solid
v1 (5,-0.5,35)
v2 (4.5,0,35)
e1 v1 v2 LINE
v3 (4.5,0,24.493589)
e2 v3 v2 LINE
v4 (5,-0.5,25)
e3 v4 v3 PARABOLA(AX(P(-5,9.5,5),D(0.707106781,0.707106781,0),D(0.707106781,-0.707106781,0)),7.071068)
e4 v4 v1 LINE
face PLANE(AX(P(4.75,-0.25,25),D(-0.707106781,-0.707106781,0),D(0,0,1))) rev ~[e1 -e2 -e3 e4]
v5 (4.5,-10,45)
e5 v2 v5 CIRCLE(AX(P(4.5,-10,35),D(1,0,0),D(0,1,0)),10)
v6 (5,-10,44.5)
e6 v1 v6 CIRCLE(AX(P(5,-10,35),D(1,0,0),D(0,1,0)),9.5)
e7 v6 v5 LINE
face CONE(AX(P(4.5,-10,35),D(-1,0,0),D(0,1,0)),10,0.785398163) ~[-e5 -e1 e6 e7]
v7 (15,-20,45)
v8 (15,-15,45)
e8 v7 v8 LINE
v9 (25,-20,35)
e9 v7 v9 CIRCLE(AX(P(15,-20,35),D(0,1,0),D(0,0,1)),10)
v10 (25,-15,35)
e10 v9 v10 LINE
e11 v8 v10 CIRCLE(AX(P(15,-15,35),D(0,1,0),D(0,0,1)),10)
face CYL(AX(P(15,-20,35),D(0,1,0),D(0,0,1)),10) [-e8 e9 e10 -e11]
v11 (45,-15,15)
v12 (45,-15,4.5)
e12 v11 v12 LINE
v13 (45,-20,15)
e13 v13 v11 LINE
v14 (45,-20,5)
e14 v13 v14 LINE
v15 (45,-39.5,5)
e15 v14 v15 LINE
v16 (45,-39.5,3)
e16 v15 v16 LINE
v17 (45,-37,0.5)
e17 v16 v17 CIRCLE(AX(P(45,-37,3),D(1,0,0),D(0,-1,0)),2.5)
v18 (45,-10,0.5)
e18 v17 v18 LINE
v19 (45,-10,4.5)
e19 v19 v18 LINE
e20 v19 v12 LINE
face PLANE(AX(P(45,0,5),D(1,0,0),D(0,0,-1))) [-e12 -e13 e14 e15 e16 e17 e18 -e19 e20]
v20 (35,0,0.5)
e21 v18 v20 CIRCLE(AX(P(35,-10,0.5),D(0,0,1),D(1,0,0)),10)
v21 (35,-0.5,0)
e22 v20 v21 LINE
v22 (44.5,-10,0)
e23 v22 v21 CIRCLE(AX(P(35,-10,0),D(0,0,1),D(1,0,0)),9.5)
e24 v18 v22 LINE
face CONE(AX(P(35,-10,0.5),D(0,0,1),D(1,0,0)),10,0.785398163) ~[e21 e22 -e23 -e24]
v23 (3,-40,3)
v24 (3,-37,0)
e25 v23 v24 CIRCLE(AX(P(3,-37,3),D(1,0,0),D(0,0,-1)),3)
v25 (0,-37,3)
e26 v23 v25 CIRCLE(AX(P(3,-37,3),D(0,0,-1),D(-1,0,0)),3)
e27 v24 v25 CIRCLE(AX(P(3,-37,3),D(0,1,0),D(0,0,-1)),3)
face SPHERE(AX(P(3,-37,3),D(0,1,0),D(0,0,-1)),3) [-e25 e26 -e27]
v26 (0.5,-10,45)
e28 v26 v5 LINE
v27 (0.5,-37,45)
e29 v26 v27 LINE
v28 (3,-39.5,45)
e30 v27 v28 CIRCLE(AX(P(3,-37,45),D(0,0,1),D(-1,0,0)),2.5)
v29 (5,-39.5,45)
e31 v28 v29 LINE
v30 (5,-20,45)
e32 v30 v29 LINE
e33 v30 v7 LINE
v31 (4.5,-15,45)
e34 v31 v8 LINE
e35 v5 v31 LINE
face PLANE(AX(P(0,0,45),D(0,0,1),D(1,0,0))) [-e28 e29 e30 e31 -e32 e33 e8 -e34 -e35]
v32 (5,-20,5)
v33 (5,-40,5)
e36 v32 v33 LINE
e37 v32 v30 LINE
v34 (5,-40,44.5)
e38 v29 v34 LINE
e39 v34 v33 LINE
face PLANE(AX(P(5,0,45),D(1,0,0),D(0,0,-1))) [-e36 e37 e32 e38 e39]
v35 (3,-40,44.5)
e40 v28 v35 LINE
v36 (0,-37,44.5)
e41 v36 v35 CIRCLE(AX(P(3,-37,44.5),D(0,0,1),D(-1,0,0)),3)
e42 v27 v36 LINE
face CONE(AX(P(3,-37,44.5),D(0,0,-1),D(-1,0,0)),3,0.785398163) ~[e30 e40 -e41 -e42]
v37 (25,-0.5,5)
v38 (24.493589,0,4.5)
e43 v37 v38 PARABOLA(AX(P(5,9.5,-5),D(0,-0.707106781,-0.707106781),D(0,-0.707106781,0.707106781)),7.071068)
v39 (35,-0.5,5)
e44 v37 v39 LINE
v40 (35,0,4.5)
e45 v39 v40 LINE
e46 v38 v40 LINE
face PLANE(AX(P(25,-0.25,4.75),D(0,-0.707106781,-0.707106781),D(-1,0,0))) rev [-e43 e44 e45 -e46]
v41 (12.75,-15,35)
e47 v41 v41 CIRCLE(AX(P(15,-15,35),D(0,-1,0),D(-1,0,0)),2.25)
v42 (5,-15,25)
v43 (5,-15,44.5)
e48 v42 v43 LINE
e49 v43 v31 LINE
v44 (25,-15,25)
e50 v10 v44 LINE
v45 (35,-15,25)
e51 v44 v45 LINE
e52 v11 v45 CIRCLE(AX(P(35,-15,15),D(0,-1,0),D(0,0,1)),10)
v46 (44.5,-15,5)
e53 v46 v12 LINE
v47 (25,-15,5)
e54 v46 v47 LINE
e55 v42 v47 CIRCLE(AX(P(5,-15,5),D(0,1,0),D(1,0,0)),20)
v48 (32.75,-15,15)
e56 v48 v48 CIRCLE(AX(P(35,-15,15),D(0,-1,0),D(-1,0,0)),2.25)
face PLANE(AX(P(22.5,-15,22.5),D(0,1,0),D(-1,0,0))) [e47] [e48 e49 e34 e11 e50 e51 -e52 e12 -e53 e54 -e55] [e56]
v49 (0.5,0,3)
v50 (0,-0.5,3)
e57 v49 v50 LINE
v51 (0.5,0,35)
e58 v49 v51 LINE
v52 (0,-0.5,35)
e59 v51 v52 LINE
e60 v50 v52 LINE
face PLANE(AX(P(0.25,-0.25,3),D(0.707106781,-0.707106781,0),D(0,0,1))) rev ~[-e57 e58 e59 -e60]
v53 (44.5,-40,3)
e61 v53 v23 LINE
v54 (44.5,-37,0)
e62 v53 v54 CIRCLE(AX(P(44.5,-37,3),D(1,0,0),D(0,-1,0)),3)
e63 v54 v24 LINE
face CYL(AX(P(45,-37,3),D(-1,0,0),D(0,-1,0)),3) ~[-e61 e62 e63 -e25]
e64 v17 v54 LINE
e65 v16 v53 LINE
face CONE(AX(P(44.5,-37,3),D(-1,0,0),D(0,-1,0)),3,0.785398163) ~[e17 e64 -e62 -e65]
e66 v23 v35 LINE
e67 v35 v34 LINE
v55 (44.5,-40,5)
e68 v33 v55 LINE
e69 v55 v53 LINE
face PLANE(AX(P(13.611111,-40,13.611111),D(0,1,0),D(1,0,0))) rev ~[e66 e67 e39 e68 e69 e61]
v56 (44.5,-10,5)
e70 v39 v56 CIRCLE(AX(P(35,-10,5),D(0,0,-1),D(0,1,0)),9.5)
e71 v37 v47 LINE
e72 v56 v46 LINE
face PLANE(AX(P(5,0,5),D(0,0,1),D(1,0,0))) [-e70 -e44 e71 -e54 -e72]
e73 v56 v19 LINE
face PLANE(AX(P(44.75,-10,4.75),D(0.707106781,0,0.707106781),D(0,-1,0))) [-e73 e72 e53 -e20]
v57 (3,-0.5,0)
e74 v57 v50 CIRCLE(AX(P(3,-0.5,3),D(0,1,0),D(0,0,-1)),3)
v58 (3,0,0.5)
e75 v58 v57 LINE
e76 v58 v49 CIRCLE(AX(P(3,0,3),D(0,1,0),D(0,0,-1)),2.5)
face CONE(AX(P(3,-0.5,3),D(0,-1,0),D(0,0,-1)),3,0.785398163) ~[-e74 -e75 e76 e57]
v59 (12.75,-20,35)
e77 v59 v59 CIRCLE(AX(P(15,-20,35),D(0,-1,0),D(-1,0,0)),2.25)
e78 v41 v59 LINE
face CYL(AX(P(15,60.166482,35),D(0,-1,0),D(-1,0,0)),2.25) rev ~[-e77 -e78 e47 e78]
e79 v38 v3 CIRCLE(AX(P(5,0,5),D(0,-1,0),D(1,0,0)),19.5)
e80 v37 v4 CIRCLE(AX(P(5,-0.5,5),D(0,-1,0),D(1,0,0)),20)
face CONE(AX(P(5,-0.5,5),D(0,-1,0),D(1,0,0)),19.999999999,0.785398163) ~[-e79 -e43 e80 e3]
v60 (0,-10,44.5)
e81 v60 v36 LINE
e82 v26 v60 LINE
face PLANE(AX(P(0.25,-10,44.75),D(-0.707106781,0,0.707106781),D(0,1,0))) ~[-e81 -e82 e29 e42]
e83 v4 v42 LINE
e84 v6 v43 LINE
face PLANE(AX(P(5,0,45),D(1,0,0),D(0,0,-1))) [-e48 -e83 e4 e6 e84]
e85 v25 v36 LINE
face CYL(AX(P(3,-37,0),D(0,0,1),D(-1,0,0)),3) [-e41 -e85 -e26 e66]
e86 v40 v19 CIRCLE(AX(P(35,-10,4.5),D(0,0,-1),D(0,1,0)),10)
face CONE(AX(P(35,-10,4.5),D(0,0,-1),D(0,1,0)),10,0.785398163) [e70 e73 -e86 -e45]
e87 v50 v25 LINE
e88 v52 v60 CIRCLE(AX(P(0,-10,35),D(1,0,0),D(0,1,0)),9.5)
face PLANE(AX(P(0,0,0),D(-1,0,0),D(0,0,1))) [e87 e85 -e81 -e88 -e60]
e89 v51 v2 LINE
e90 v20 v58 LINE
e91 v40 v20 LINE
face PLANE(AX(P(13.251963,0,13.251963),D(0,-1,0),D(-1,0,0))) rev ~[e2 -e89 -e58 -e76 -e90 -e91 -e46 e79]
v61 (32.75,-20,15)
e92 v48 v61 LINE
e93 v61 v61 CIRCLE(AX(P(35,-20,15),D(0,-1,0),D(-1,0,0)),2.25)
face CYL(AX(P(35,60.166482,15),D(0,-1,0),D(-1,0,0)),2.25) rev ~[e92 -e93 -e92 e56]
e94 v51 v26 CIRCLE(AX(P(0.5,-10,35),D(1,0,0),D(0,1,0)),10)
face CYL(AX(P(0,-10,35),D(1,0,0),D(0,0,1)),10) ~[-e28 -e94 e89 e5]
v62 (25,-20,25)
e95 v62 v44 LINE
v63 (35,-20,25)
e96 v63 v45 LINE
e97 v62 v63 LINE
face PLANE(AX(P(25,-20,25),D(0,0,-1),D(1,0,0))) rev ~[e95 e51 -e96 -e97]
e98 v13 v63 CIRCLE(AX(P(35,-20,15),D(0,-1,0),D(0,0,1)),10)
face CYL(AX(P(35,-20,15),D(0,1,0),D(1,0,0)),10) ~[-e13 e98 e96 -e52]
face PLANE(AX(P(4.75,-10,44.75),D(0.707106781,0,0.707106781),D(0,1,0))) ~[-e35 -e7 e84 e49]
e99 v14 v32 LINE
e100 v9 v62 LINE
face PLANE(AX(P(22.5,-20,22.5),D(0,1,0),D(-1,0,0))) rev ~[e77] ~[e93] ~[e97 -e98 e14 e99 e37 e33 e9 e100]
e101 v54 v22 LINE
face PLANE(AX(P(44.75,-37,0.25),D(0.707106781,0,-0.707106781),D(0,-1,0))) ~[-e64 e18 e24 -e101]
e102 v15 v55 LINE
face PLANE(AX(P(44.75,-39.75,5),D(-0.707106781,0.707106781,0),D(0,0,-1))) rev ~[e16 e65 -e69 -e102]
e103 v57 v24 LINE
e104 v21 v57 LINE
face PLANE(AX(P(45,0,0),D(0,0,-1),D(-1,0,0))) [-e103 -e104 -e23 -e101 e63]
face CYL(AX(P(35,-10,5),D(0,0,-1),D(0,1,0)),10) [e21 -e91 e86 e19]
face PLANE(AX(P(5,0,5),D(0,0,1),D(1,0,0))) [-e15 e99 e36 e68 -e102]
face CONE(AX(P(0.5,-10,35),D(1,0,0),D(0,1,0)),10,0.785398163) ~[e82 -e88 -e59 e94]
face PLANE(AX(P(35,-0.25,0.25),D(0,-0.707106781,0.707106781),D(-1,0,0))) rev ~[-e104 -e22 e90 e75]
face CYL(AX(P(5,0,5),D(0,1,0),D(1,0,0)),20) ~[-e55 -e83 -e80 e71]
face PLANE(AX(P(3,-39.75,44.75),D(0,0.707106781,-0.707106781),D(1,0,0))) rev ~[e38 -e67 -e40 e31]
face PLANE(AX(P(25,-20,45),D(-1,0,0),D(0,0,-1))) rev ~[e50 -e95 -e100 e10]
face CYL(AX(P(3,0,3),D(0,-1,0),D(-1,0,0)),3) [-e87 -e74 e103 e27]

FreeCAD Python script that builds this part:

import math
import FreeCAD as App
import Part
import Sketcher

V = App.Vector


def edges_at(feature, points):
    """Names of the edges that pass closest to the given points."""
    edges = feature.Shape.Edges
    near = lambda p: min(range(len(edges)), key=lambda i: edges[i].distToShape(Part.Vertex(*p))[0])
    return sorted({f"Edge{near(p) + 1}" for p in points})


def add_polygon(sketch, points):
    """Adds a closed chain of lines whose ends are joined by coincident constraints."""
    first, n = sketch.GeometryCount, len(points)
    for a, b in zip(points, points[1:] + points[:1]):
        sketch.addGeometry(Part.LineSegment(App.Vector(*a, 0), App.Vector(*b, 0)), False)
    for i in range(n):
        sketch.addConstraint(Sketcher.Constraint("Coincident", first + i, 2, first + (i + 1) % n, 1))

doc = App.newDocument("Part")
body = doc.addObject("PartDesign::Body", "Body")

sketch1 = body.newObject("Sketcher::SketchObject", "Sketch")
sketch1.AttachmentSupport = (doc.getObject("XZ_Plane"), [""])
sketch1.MapMode = "FlatFace"
add_polygon(sketch1, [(0, 0), (0, 45), (5, 45), (5, 5), (45, 5), (45, 0)])
sketch1.addConstraint(Sketcher.Constraint("Vertical", 0))
sketch1.addConstraint(Sketcher.Constraint("Horizontal", 1))
sketch1.addConstraint(Sketcher.Constraint("Vertical", 2))
sketch1.addConstraint(Sketcher.Constraint("Horizontal", 3))
sketch1.addConstraint(Sketcher.Constraint("Vertical", 4))
sketch1.addConstraint(Sketcher.Constraint("Horizontal", 5))
sketch1.addConstraint(Sketcher.Constraint("Coincident", 5, 2, -1, 1))
sketch1.addConstraint(Sketcher.Constraint("Equal", 5, 0))
sketch1.addConstraint(Sketcher.Constraint("Equal", 3, 2))
sketch1.addConstraint(Sketcher.Constraint("DistanceX", 1, 1, 1, 2, 5.0))
sketch1.addConstraint(Sketcher.Constraint("DistanceX", 3, 1, 3, 2, 40.0))
pad1 = body.newObject("PartDesign::Pad", "Pad")
pad1.Profile = sketch1
pad1.Length = 40

sketch2 = body.newObject("Sketcher::SketchObject", "Sketch001")
sketch2.AttachmentSupport = (doc.getObject("XZ_Plane"), [""])
sketch2.MapMode = "FlatFace"
sketch2.AttachmentOffset = App.Placement(V(0, 0, 20), App.Rotation())
add_polygon(sketch2, [(25, 45), (5, 45), (5, 5), (45, 5), (45, 25), (25, 25)])
sketch2.addConstraint(Sketcher.Constraint("Horizontal", 0))
sketch2.addConstraint(Sketcher.Constraint("Vertical", 1))
sketch2.addConstraint(Sketcher.Constraint("Horizontal", 2))
sketch2.addConstraint(Sketcher.Constraint("Vertical", 3))
sketch2.addConstraint(Sketcher.Constraint("Horizontal", 4))
sketch2.addConstraint(Sketcher.Constraint("Vertical", 5))
sketch2.addConstraint(Sketcher.Constraint("Equal", 0, 4))
sketch2.addConstraint(Sketcher.Constraint("Equal", 2, 1))
sketch2.addConstraint(Sketcher.Constraint("Equal", 4, 3))
sketch2.addConstraint(Sketcher.Constraint("DistanceX", 0, 2, 0, 1, 20.0))
sketch2.addConstraint(Sketcher.Constraint("DistanceX", -1, 1, 0, 2, 5.0))
sketch2.addConstraint(Sketcher.Constraint("DistanceY", -1, 1, 0, 2, 45.0))
pad2 = body.newObject("PartDesign::Pad", "Pad001")
pad2.Profile = sketch2
pad2.Length = 5
pad2.Reversed = True
doc.recompute()

fillet = body.newObject("PartDesign::Fillet", "Fillet")
fillet.Base = (pad2, edges_at(pad2, [
    (25, -17.5, 45),
    (45, -17.5, 25),
    (45, 0, 2.5),
    (2.5, 0, 45),
]))
fillet.Radius = 10
doc.recompute()

fillet2 = body.newObject("PartDesign::Fillet", "Fillet001")
fillet2.Base = (fillet, edges_at(fillet, [(0, -20, 0), (22.5, -40, 0), (0, -40, 22.5)]))
fillet2.Radius = 3

sketch3 = body.newObject("Sketcher::SketchObject", "Sketch002")
sketch3.AttachmentSupport = (doc.getObject("XZ_Plane"), [""])
sketch3.MapMode = "FlatFace"
sketch3.AttachmentOffset = App.Placement(V(0, 0, 15), App.Rotation())
sketch3.addGeometry(Part.Circle(V(35, 15, 0), V(0, 0, 1), 2.2), False)
sketch3.addGeometry(Part.Circle(V(15, 35, 0), V(0, 0, 1), 2.2), False)
sketch3.addConstraint(Sketcher.Constraint("Equal", 0, 1))
sketch3.addConstraint(Sketcher.Constraint("Diameter", 0, 4.5))
sketch3.addConstraint(Sketcher.Constraint("DistanceX", -1, 1, 0, 3, 35.0))
sketch3.addConstraint(Sketcher.Constraint("DistanceY", -1, 1, 0, 3, 15.0))
sketch3.addConstraint(Sketcher.Constraint("DistanceX", -1, 1, 1, 3, 15.0))
sketch3.addConstraint(Sketcher.Constraint("DistanceY", -1, 1, 1, 3, 35.0))
doc.recompute()
hole = body.newObject("PartDesign::Hole", "Hole")
hole.Profile = sketch3
hole.ThreadType = "None"
hole.Diameter = 4.5
hole.DepthType = "ThroughAll"
hole.Reversed = True

sketch4 = body.newObject("Sketcher::SketchObject", "Sketch003")
sketch4.AttachmentSupport = (doc.getObject("XZ_Plane"), [""])
sketch4.MapMode = "FlatFace"
sketch4.addGeometry(Part.LineSegment(V(5, 5, 0), V(5, 25, 0)), False)
sketch4.addGeometry(Part.ArcOfCircle(Part.Circle(V(5, 5, 0), V(0, 0, 1), 20), math.radians(0), math.radians(90)), False)
sketch4.addGeometry(Part.LineSegment(V(25, 5, 0), V(5, 5, 0)), False)
sketch4.addConstraint(Sketcher.Constraint("Coincident", 0, 2, 1, 2))
sketch4.addConstraint(Sketcher.Constraint("Coincident", 1, 1, 2, 1))
sketch4.addConstraint(Sketcher.Constraint("Coincident", 2, 2, 0, 1))
sketch4.addConstraint(Sketcher.Constraint("Vertical", 0))
sketch4.addConstraint(Sketcher.Constraint("Horizontal", 2))
sketch4.addConstraint(Sketcher.Constraint("Coincident", 2, 2, 1, 3))
sketch4.addConstraint(Sketcher.Constraint("Radius", 1, 20.0))
sketch4.addConstraint(Sketcher.Constraint("DistanceX", -1, 1, 1, 3, 5.0))
sketch4.addConstraint(Sketcher.Constraint("DistanceY", -1, 1, 1, 3, 5.0))
pad3 = body.newObject("PartDesign::Pad", "Pad002")
pad3.Profile = sketch4
pad3.Type = "UpToFirst"
doc.recompute()

chamfer = body.newObject("PartDesign::Chamfer", "Chamfer")
chamfer.Base = (pad3, edges_at(pad3, [
    (4, -40, 45),
    (45, -40, 4),
    (0.879, -39.121, 45),
    (45, -39.121, 0.879),
    (0, -23.5, 45),
    (45, -23.5, 0),
    (0, -2.929, 42.071),
    (42.071, -2.929, 0),
    (0, 0, 19),
    (0.879, 0, 0.879),
    (19, 0, 0),
    (5, -12.5, 45),
    (45, -12.5, 5),
    (5, -2.929, 42.071),
    (42.071, -2.929, 5),
    (5, 0, 30),
    (30, 0, 5),
    (19.142, 0, 19.142),
]))
chamfer.Size = 0.5

doc.recompute()
